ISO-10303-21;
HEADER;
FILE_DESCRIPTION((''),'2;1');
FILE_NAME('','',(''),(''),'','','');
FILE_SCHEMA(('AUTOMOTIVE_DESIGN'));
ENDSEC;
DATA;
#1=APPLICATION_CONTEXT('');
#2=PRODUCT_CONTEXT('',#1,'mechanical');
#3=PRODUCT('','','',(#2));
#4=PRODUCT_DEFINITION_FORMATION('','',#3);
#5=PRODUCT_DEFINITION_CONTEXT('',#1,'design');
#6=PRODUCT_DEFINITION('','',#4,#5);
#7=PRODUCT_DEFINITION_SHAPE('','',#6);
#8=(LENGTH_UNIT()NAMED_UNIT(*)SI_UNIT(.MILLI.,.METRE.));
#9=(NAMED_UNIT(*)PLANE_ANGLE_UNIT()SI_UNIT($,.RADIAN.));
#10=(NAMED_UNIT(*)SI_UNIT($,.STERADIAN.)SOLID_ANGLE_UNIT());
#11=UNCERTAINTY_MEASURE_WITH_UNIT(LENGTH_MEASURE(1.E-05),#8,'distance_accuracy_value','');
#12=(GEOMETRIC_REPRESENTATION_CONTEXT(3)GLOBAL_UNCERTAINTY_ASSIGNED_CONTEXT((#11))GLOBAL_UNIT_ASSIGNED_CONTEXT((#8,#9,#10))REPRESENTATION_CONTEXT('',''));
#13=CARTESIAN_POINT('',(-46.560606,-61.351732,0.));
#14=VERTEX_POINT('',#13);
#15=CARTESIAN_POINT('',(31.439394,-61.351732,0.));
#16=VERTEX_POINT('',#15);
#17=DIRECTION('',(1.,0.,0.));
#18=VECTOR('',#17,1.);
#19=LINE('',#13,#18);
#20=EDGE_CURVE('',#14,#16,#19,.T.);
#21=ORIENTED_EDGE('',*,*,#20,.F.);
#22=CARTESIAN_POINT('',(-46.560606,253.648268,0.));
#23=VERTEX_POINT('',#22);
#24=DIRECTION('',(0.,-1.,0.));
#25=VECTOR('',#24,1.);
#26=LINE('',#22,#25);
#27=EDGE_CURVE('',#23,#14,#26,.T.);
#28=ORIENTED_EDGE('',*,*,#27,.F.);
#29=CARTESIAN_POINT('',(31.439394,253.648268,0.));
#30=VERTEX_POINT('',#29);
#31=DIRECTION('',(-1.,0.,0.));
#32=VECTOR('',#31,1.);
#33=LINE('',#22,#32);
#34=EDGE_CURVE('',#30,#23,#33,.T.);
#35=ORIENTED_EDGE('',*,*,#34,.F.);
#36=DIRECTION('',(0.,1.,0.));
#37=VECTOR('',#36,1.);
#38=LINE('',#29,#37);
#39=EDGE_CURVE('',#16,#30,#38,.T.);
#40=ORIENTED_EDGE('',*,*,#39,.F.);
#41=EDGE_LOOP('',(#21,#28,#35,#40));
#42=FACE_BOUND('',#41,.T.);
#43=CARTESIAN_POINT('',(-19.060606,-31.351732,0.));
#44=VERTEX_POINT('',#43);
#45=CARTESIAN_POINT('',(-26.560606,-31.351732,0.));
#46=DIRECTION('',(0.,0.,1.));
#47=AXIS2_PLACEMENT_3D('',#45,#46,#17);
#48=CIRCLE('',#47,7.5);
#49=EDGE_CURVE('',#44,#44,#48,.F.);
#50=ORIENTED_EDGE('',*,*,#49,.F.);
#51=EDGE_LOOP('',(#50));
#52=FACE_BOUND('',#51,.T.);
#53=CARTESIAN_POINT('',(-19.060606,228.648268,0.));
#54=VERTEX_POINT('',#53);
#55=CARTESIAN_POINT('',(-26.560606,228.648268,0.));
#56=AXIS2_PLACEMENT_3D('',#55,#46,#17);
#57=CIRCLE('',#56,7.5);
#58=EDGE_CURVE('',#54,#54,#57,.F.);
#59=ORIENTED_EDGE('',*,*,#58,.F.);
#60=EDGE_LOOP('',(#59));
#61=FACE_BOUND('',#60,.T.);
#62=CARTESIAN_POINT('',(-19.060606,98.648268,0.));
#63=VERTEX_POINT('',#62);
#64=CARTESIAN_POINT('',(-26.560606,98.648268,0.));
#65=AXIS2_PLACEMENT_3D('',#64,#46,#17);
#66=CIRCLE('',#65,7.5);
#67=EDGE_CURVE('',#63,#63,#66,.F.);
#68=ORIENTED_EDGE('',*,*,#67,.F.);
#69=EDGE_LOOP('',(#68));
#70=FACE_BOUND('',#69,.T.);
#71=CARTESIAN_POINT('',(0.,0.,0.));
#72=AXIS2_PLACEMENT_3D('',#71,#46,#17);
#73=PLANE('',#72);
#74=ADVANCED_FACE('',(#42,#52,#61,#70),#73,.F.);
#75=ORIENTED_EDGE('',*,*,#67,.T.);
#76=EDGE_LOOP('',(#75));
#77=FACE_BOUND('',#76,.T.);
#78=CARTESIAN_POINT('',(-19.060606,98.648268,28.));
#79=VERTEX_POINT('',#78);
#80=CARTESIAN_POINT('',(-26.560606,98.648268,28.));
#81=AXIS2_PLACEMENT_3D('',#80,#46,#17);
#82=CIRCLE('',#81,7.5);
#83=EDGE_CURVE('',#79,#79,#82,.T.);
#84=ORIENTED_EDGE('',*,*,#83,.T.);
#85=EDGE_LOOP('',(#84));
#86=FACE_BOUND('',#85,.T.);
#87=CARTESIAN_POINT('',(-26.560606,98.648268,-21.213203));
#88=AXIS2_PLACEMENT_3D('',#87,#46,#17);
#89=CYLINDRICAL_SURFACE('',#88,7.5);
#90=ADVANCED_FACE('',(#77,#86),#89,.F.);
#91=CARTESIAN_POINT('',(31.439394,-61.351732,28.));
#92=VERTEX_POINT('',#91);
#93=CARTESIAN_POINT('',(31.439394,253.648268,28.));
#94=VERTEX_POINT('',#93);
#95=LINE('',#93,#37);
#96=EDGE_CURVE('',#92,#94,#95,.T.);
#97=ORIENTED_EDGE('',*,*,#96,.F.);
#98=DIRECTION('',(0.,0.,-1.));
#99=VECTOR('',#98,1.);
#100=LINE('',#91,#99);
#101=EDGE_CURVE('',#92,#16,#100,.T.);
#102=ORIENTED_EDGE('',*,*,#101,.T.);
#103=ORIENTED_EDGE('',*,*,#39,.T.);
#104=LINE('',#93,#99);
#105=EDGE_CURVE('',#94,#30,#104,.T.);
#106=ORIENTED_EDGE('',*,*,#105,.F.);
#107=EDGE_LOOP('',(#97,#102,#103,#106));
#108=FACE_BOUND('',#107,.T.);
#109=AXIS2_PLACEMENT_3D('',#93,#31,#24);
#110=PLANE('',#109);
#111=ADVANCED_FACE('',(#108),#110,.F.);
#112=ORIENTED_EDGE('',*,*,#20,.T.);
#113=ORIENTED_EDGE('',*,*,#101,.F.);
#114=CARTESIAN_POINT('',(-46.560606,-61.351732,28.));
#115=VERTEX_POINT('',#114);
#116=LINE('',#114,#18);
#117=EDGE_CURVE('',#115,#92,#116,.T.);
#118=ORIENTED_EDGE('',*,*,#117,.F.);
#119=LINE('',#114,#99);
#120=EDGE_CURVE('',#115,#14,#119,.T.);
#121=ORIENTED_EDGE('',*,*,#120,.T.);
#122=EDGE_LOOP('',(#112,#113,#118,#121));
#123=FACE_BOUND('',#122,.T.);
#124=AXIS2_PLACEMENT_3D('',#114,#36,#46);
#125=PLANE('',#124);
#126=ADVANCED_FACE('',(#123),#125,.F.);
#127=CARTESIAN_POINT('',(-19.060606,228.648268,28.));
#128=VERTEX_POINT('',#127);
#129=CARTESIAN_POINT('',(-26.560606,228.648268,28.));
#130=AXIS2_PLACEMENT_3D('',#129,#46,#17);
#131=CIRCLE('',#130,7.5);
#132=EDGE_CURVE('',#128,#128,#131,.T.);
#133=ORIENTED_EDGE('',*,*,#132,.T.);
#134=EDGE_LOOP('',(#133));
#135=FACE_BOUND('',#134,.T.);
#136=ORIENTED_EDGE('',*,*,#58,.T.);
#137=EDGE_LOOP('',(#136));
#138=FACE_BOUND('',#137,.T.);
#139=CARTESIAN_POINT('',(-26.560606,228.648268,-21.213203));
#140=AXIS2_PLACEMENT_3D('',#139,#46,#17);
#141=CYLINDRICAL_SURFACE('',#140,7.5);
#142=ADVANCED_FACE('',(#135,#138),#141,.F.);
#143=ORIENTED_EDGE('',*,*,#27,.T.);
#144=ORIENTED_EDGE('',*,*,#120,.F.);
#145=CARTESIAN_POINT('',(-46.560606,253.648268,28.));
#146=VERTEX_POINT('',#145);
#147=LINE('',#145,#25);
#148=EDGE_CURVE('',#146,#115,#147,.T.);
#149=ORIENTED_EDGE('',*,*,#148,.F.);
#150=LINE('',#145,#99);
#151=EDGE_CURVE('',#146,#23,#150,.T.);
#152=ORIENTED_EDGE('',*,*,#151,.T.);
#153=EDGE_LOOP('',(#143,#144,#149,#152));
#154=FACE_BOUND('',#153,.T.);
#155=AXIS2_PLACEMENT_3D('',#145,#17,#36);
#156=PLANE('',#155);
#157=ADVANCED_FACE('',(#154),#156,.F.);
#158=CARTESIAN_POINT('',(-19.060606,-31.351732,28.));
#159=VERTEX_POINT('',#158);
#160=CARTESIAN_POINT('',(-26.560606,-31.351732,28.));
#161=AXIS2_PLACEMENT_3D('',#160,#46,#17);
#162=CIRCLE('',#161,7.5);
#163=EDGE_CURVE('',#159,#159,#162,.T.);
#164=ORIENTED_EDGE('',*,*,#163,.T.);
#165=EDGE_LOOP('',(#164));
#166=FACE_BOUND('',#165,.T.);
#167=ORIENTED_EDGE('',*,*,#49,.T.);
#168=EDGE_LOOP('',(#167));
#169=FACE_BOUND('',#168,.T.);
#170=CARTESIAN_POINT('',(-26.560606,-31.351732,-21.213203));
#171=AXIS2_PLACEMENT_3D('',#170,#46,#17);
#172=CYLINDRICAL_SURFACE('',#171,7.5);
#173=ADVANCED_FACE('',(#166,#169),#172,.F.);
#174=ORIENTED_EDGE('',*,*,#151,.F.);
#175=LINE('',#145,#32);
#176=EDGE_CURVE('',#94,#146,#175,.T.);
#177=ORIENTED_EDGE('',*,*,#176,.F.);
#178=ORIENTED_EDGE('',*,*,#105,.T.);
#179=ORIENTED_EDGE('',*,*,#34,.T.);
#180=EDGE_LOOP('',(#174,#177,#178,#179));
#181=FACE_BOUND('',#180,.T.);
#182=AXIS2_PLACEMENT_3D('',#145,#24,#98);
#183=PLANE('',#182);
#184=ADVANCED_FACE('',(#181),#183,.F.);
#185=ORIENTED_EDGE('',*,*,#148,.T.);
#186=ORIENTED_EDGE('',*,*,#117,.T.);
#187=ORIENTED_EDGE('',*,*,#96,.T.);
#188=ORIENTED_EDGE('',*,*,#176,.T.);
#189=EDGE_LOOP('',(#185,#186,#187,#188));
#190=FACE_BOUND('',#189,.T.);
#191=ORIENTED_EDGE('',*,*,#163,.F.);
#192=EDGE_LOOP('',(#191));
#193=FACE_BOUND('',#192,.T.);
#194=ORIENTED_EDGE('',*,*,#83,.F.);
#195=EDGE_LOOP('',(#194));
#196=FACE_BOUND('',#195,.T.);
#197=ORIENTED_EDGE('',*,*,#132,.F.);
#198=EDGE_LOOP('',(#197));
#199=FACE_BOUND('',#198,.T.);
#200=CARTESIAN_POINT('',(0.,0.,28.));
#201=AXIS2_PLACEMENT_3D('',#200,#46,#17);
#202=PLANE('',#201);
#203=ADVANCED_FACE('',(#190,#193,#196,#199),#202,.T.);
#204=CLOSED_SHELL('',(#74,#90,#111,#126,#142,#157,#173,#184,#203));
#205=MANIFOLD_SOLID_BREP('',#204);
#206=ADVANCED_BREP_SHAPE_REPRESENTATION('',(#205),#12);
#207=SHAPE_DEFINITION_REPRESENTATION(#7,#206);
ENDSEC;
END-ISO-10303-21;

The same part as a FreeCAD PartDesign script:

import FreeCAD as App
import Part
import Sketcher


def add_polygon(sketch, points):
    """Adds a closed chain of lines whose ends are joined by coincident constraints."""
    first, n = sketch.GeometryCount, len(points)
    for a, b in zip(points, points[1:] + points[:1]):
        sketch.addGeometry(Part.LineSegment(App.Vector(*a, 0), App.Vector(*b, 0)), False)
    for i in range(n):
        sketch.addConstraint(Sketcher.Constraint("Coincident", first + i, 2, first + (i + 1) % n, 1))

doc = App.newDocument("Part")
body = doc.addObject("PartDesign::Body", "Body")

sketch1 = doc.addObject("Sketcher::SketchObject", "Sketch")
body.addObject(sketch1)
sketch1.AttachmentSupport = (doc.XY_Plane, [""])
sketch1.MapMode = "FlatFace"
add_polygon(sketch1, [(-47, 254), (-47, -61), (31, -61), (31, 254)])
sketch1.addConstraint(Sketcher.Constraint("Vertical", 0))
sketch1.addConstraint(Sketcher.Constraint("Horizontal", 1))
sketch1.addConstraint(Sketcher.Constraint("Vertical", 2))
sketch1.addConstraint(Sketcher.Constraint("Horizontal", 3))
sketch1.addConstraint(Sketcher.Constraint("DistanceX", 1, 1, 1, 2, 78.0))
sketch1.addConstraint(Sketcher.Constraint("DistanceY", 0, 2, 0, 1, 315.0))
sketch1.addConstraint(Sketcher.Constraint("DistanceY", 0, 2, -1, 1, 61.351732))
sketch1.addConstraint(Sketcher.Constraint("DistanceX", 0, 2, -1, 1, 46.560606))
pad1 = doc.addObject("PartDesign::Pad", "Pad")
body.addObject(pad1)
pad1.Profile = sketch1
pad1.Length = 28

sketch2 = doc.addObject("Sketcher::SketchObject", "Sketch001")
body.addObject(sketch2)
sketch2.AttachmentSupport = (doc.XY_Plane, [""])
sketch2.MapMode = "FlatFace"
sketch2.AttachmentOffset = App.Placement(App.Vector(0, 0, 28), App.Rotation())
sketch2.addGeometry(Part.Circle(App.Vector(-27, 229, 0), App.Vector(0, 0, 1), 8), False)
sketch2.addGeometry(Part.Circle(App.Vector(-27, 99, 0), App.Vector(0, 0, 1), 8), False)
sketch2.addGeometry(Part.Circle(App.Vector(-27, -31, 0), App.Vector(0, 0, 1), 8), False)
sketch2.addConstraint(Sketcher.Constraint("Equal", 0, 1))
sketch2.addConstraint(Sketcher.Constraint("Equal", 1, 2))
sketch2.addConstraint(Sketcher.Constraint("Vertical", 0, 3, 1, 3))
sketch2.addConstraint(Sketcher.Constraint("Vertical", 1, 3, 2, 3))
sketch2.addConstraint(Sketcher.Constraint("Diameter", 0, 15.0))
sketch2.addConstraint(Sketcher.Constraint("DistanceY", 1, 3, 0, 3, 130.0))
sketch2.addConstraint(Sketcher.Constraint("DistanceY", 2, 3, 1, 3, 130.0))
sketch2.addConstraint(Sketcher.Constraint("DistanceY", -1, 1, 0, 3, 228.648268))
sketch2.addConstraint(Sketcher.Constraint("DistanceX", 0, 3, -1, 1, 26.560606))
pocket1 = doc.addObject("PartDesign::Pocket", "Pocket")
body.addObject(pocket1)
pocket1.Profile = sketch2
pocket1.Length = 28

doc.recompute()
